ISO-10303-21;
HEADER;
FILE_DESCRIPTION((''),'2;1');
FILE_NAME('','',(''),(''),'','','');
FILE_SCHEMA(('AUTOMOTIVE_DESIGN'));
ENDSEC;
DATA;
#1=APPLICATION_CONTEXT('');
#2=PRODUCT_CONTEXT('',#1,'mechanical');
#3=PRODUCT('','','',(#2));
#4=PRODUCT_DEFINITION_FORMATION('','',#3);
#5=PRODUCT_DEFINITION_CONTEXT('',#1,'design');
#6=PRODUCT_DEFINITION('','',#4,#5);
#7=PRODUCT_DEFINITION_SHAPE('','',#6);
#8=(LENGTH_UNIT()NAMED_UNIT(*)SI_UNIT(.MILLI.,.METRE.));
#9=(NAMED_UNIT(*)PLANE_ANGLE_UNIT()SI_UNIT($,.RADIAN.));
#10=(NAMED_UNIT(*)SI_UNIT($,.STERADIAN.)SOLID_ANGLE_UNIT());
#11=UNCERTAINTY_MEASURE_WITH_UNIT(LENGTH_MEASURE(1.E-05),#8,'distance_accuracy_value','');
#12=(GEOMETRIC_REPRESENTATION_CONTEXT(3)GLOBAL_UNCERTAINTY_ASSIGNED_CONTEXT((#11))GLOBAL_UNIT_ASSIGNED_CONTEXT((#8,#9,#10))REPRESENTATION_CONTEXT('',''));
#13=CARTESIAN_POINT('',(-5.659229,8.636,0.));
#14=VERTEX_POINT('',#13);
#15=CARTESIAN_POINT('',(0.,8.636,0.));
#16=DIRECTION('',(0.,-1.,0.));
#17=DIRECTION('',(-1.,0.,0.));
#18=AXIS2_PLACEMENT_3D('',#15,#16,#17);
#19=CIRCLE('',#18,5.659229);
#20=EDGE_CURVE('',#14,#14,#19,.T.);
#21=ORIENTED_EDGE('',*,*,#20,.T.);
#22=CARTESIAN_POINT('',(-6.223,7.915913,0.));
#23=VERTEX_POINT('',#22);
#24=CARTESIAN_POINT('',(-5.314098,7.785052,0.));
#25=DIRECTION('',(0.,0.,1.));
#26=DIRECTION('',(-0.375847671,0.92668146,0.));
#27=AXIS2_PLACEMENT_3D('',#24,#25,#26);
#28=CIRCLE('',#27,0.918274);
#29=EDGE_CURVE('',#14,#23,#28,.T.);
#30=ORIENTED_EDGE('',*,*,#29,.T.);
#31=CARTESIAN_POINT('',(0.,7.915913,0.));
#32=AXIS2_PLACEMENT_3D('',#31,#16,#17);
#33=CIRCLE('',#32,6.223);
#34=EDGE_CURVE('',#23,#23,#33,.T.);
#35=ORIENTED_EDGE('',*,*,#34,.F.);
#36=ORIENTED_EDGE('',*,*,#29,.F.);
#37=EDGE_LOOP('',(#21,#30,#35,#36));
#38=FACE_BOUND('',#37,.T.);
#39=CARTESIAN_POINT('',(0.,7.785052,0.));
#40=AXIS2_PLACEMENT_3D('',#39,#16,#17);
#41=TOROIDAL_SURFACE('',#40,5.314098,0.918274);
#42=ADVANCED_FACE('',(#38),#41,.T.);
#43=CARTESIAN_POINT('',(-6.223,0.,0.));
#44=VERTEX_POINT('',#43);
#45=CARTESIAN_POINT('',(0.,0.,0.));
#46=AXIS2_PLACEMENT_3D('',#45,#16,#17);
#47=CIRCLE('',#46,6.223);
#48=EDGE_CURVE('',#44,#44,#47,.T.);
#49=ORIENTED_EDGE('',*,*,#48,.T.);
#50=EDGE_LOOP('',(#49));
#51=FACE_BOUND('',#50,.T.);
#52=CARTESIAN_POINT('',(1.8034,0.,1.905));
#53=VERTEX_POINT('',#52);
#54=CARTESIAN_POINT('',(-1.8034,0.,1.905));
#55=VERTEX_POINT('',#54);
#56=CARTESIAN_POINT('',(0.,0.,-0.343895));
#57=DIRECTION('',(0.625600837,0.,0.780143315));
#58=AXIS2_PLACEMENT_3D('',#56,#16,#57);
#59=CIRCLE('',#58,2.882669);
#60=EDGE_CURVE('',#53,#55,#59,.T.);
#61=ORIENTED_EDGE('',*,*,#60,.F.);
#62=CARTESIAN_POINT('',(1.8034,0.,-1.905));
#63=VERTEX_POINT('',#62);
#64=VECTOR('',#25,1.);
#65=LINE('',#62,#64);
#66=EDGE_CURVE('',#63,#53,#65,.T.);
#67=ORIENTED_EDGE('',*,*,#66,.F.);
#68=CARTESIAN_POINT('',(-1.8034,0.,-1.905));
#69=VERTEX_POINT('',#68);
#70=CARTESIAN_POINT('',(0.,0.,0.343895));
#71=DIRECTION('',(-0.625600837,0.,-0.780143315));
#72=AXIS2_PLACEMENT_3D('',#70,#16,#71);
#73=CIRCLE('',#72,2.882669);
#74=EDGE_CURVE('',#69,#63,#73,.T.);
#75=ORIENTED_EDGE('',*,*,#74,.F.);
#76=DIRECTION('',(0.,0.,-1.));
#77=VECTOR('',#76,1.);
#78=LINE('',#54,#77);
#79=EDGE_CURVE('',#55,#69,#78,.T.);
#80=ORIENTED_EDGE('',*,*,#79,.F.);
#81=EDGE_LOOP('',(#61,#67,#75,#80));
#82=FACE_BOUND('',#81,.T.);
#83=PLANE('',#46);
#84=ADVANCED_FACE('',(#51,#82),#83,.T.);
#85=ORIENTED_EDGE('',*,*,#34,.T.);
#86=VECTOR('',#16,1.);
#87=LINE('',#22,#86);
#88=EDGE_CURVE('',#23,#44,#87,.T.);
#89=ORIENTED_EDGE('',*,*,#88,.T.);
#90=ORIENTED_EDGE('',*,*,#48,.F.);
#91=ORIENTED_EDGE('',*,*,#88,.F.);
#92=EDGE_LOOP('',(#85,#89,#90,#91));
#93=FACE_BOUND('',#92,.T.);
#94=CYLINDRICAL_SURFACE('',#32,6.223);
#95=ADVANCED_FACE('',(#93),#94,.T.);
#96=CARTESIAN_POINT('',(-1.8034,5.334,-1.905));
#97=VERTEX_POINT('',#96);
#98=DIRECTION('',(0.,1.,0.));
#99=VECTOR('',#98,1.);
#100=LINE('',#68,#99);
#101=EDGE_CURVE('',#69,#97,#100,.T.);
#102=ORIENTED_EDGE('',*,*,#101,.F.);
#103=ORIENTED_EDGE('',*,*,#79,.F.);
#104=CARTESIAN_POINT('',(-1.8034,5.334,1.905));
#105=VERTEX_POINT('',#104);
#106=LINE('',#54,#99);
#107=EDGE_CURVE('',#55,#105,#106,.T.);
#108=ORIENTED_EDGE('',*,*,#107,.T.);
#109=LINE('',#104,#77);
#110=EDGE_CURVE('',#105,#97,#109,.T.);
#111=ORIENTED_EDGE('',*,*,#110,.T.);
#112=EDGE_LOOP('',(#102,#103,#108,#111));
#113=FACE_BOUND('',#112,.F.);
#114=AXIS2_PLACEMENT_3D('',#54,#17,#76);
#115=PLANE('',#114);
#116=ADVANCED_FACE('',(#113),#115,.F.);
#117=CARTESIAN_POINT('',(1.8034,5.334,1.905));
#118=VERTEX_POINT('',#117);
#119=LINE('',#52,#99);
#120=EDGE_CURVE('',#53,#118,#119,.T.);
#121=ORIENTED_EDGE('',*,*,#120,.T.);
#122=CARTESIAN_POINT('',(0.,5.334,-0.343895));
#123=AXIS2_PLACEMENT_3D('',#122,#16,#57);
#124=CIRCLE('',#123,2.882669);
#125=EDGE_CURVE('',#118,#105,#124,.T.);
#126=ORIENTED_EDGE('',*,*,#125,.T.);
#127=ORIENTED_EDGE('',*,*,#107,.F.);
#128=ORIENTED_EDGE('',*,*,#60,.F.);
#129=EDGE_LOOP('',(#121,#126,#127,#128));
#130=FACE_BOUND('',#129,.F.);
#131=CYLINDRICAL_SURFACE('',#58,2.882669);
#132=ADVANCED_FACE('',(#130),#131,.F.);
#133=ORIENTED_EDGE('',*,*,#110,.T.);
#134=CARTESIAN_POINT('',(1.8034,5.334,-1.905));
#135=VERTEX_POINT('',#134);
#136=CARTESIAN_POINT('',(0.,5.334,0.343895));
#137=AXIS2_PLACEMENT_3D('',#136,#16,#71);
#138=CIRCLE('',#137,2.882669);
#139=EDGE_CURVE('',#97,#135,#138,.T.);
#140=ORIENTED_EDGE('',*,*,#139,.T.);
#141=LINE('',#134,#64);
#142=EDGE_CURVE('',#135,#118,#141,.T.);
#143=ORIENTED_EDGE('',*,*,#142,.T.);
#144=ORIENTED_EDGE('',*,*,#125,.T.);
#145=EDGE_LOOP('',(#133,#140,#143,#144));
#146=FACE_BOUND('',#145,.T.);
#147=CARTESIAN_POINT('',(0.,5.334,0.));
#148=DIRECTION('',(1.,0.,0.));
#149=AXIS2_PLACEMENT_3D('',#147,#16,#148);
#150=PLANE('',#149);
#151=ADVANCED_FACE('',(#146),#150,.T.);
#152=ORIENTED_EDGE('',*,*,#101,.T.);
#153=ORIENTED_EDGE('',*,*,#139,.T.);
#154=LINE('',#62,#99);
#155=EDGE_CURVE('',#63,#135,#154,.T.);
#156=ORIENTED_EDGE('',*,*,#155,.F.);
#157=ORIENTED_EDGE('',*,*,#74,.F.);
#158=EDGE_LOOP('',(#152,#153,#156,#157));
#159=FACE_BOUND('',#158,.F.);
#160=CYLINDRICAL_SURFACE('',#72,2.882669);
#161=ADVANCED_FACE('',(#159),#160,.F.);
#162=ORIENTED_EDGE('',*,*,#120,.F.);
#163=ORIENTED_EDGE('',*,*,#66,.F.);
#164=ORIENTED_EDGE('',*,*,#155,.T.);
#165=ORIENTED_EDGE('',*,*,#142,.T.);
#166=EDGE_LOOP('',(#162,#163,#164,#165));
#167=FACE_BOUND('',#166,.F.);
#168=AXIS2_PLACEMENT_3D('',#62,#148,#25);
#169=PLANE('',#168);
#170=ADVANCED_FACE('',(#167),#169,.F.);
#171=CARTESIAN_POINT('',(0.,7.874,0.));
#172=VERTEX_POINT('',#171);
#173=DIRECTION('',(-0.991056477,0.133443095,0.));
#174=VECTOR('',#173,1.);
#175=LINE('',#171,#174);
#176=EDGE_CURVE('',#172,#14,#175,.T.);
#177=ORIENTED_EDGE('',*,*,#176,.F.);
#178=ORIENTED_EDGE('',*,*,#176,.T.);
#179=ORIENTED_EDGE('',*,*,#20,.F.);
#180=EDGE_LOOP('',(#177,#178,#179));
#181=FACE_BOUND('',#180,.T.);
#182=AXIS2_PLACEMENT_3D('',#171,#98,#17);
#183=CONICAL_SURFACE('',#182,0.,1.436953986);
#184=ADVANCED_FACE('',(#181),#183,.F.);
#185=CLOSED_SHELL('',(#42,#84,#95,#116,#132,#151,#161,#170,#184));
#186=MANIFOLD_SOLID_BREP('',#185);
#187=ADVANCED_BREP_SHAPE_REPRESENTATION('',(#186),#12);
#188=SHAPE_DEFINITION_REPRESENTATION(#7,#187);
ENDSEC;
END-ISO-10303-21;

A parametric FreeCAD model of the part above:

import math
import FreeCAD as App
import Part
import Sketcher
from FreeCAD import Vector
Q = App.Units.Quantity

doc = App.newDocument("Part")
params = doc.addObject("Spreadsheet::Sheet", "Params")
for row, (alias, value) in enumerate([
    ("sketch1_height", "0.31 in"),
    ("sketch1_width", "0.245 in"),
    ("revolution_angle", "360 deg"),
    ("sketch2_height", "0.15 in"),
    ("pocket1_length", "0.21 in"),
], start=1):
    params.set(f"A{row}", alias)
    params.set(f"B{row}", "=" + value)
    params.setAlias(f"B{row}", alias)

body = doc.addObject("PartDesign::Body", "Body")

sketch1 = body.newObject("Sketcher::SketchObject", "Sketch")
sketch1.AttachmentSupport = (doc.getObject("XY_Plane"), [""])
sketch1.MapMode = "FlatFace"
sketch1.addGeometry([
    Part.LineSegment(Vector(-6.223, 0, 0), Vector(0, 0, 0)),
    Part.LineSegment(Vector(0, 0, 0), Vector(0, 7.874, 0)),
    Part.LineSegment(Vector(0, 7.874, 0), Vector(-5.659229, 8.636, 0)),
    Part.ArcOfCircle(Part.Circle(Vector(-5.314098, 7.785052, 0), Vector(0, 0, 1), 0.918274), math.radians(112.076714), math.radians(171.807034)),
    Part.LineSegment(Vector(-6.223, 7.915913, 0), Vector(-6.223, 0, 0)),
], False)
sketch1.addConstraint([
    Sketcher.Constraint("Coincident", 0, 2, 1, 1),
    Sketcher.Constraint("Coincident", 1, 2, 2, 1),
    Sketcher.Constraint("Coincident", 2, 2, 3, 1),
    Sketcher.Constraint("Coincident", 3, 2, 4, 1),
    Sketcher.Constraint("Coincident", 4, 2, 0, 1),
    Sketcher.Constraint("Horizontal", 0),
    Sketcher.Constraint("Vertical", 1),
    Sketcher.Constraint("Vertical", 4),
    Sketcher.Constraint("Coincident", 0, 2, -1, 1),
    Sketcher.Constraint("DistanceY", 1, 1, 1, 2, Q("0.31 in")),
    Sketcher.Constraint("DistanceX", 0, 1, 0, 2, Q("0.245 in")),
    Sketcher.Constraint("DistanceY", -1, 1, 2, 2, Q("0.34 in")),
    Sketcher.Constraint("Radius", 3, 0.918274),
    Sketcher.Constraint("Distance", 2, 5.710299),
    Sketcher.Constraint("DistanceY", 4, 2, 4, 1, 7.915913),
])
sketch1.setExpression("Constraints[9]", "Params.sketch1_height")
sketch1.setExpression("Constraints[10]", "Params.sketch1_width")
revolution = body.newObject("PartDesign::Revolution", "Revolution")
revolution.Profile = sketch1
revolution.ReferenceAxis = (sketch1, ["V_Axis"])
revolution.setExpression("Angle", "Params.revolution_angle")

sketch2 = body.newObject("Sketcher::SketchObject", "Sketch001")
sketch2.AttachmentSupport = (doc.getObject("XZ_Plane"), [""])
sketch2.MapMode = "FlatFace"
sketch2.addGeometry([
    Part.LineSegment(Vector(1.8034, -1.905, 0), Vector(1.8034, 1.905, 0)),
    Part.ArcOfCircle(Part.Circle(Vector(0, -0.343895, 0), Vector(0, 0, 1), 2.882669), math.radians(51.273699), math.radians(128.726301)),
    Part.LineSegment(Vector(-1.8034, 1.905, 0), Vector(-1.8034, -1.905, 0)),
    Part.ArcOfCircle(Part.Circle(Vector(0, 0.343895, 0), Vector(0, 0, 1), 2.882669), math.radians(-128.726301), math.radians(-51.273699)),
], False)
sketch2.addConstraint([
    Sketcher.Constraint("Coincident", 0, 2, 1, 1),
    Sketcher.Constraint("Coincident", 1, 2, 2, 1),
    Sketcher.Constraint("Coincident", 2, 2, 3, 1),
    Sketcher.Constraint("Coincident", 3, 2, 0, 1),
    Sketcher.Constraint("Vertical", 0),
    Sketcher.Constraint("Vertical", 2),
    Sketcher.Constraint("Equal", 1, 3),
    Sketcher.Constraint("Symmetric", 1, 3, 3, 3, -1, 1),
    Sketcher.Constraint("Symmetric", 0, 2, 1, 2, -2),
    Sketcher.Constraint("DistanceY", 0, 1, 0, 2, Q("0.15 in")),
    Sketcher.Constraint("DistanceX", -1, 1, 0, 2, Q("0.071 in")),
    Sketcher.Constraint("Radius", 1, 2.882669),
])
sketch2.setExpression("Constraints[9]", "Params.sketch2_height")
pocket1 = body.newObject("PartDesign::Pocket", "Pocket")
pocket1.Profile = sketch2
pocket1.setExpression("Length", "Params.pocket1_length")

doc.recompute()
